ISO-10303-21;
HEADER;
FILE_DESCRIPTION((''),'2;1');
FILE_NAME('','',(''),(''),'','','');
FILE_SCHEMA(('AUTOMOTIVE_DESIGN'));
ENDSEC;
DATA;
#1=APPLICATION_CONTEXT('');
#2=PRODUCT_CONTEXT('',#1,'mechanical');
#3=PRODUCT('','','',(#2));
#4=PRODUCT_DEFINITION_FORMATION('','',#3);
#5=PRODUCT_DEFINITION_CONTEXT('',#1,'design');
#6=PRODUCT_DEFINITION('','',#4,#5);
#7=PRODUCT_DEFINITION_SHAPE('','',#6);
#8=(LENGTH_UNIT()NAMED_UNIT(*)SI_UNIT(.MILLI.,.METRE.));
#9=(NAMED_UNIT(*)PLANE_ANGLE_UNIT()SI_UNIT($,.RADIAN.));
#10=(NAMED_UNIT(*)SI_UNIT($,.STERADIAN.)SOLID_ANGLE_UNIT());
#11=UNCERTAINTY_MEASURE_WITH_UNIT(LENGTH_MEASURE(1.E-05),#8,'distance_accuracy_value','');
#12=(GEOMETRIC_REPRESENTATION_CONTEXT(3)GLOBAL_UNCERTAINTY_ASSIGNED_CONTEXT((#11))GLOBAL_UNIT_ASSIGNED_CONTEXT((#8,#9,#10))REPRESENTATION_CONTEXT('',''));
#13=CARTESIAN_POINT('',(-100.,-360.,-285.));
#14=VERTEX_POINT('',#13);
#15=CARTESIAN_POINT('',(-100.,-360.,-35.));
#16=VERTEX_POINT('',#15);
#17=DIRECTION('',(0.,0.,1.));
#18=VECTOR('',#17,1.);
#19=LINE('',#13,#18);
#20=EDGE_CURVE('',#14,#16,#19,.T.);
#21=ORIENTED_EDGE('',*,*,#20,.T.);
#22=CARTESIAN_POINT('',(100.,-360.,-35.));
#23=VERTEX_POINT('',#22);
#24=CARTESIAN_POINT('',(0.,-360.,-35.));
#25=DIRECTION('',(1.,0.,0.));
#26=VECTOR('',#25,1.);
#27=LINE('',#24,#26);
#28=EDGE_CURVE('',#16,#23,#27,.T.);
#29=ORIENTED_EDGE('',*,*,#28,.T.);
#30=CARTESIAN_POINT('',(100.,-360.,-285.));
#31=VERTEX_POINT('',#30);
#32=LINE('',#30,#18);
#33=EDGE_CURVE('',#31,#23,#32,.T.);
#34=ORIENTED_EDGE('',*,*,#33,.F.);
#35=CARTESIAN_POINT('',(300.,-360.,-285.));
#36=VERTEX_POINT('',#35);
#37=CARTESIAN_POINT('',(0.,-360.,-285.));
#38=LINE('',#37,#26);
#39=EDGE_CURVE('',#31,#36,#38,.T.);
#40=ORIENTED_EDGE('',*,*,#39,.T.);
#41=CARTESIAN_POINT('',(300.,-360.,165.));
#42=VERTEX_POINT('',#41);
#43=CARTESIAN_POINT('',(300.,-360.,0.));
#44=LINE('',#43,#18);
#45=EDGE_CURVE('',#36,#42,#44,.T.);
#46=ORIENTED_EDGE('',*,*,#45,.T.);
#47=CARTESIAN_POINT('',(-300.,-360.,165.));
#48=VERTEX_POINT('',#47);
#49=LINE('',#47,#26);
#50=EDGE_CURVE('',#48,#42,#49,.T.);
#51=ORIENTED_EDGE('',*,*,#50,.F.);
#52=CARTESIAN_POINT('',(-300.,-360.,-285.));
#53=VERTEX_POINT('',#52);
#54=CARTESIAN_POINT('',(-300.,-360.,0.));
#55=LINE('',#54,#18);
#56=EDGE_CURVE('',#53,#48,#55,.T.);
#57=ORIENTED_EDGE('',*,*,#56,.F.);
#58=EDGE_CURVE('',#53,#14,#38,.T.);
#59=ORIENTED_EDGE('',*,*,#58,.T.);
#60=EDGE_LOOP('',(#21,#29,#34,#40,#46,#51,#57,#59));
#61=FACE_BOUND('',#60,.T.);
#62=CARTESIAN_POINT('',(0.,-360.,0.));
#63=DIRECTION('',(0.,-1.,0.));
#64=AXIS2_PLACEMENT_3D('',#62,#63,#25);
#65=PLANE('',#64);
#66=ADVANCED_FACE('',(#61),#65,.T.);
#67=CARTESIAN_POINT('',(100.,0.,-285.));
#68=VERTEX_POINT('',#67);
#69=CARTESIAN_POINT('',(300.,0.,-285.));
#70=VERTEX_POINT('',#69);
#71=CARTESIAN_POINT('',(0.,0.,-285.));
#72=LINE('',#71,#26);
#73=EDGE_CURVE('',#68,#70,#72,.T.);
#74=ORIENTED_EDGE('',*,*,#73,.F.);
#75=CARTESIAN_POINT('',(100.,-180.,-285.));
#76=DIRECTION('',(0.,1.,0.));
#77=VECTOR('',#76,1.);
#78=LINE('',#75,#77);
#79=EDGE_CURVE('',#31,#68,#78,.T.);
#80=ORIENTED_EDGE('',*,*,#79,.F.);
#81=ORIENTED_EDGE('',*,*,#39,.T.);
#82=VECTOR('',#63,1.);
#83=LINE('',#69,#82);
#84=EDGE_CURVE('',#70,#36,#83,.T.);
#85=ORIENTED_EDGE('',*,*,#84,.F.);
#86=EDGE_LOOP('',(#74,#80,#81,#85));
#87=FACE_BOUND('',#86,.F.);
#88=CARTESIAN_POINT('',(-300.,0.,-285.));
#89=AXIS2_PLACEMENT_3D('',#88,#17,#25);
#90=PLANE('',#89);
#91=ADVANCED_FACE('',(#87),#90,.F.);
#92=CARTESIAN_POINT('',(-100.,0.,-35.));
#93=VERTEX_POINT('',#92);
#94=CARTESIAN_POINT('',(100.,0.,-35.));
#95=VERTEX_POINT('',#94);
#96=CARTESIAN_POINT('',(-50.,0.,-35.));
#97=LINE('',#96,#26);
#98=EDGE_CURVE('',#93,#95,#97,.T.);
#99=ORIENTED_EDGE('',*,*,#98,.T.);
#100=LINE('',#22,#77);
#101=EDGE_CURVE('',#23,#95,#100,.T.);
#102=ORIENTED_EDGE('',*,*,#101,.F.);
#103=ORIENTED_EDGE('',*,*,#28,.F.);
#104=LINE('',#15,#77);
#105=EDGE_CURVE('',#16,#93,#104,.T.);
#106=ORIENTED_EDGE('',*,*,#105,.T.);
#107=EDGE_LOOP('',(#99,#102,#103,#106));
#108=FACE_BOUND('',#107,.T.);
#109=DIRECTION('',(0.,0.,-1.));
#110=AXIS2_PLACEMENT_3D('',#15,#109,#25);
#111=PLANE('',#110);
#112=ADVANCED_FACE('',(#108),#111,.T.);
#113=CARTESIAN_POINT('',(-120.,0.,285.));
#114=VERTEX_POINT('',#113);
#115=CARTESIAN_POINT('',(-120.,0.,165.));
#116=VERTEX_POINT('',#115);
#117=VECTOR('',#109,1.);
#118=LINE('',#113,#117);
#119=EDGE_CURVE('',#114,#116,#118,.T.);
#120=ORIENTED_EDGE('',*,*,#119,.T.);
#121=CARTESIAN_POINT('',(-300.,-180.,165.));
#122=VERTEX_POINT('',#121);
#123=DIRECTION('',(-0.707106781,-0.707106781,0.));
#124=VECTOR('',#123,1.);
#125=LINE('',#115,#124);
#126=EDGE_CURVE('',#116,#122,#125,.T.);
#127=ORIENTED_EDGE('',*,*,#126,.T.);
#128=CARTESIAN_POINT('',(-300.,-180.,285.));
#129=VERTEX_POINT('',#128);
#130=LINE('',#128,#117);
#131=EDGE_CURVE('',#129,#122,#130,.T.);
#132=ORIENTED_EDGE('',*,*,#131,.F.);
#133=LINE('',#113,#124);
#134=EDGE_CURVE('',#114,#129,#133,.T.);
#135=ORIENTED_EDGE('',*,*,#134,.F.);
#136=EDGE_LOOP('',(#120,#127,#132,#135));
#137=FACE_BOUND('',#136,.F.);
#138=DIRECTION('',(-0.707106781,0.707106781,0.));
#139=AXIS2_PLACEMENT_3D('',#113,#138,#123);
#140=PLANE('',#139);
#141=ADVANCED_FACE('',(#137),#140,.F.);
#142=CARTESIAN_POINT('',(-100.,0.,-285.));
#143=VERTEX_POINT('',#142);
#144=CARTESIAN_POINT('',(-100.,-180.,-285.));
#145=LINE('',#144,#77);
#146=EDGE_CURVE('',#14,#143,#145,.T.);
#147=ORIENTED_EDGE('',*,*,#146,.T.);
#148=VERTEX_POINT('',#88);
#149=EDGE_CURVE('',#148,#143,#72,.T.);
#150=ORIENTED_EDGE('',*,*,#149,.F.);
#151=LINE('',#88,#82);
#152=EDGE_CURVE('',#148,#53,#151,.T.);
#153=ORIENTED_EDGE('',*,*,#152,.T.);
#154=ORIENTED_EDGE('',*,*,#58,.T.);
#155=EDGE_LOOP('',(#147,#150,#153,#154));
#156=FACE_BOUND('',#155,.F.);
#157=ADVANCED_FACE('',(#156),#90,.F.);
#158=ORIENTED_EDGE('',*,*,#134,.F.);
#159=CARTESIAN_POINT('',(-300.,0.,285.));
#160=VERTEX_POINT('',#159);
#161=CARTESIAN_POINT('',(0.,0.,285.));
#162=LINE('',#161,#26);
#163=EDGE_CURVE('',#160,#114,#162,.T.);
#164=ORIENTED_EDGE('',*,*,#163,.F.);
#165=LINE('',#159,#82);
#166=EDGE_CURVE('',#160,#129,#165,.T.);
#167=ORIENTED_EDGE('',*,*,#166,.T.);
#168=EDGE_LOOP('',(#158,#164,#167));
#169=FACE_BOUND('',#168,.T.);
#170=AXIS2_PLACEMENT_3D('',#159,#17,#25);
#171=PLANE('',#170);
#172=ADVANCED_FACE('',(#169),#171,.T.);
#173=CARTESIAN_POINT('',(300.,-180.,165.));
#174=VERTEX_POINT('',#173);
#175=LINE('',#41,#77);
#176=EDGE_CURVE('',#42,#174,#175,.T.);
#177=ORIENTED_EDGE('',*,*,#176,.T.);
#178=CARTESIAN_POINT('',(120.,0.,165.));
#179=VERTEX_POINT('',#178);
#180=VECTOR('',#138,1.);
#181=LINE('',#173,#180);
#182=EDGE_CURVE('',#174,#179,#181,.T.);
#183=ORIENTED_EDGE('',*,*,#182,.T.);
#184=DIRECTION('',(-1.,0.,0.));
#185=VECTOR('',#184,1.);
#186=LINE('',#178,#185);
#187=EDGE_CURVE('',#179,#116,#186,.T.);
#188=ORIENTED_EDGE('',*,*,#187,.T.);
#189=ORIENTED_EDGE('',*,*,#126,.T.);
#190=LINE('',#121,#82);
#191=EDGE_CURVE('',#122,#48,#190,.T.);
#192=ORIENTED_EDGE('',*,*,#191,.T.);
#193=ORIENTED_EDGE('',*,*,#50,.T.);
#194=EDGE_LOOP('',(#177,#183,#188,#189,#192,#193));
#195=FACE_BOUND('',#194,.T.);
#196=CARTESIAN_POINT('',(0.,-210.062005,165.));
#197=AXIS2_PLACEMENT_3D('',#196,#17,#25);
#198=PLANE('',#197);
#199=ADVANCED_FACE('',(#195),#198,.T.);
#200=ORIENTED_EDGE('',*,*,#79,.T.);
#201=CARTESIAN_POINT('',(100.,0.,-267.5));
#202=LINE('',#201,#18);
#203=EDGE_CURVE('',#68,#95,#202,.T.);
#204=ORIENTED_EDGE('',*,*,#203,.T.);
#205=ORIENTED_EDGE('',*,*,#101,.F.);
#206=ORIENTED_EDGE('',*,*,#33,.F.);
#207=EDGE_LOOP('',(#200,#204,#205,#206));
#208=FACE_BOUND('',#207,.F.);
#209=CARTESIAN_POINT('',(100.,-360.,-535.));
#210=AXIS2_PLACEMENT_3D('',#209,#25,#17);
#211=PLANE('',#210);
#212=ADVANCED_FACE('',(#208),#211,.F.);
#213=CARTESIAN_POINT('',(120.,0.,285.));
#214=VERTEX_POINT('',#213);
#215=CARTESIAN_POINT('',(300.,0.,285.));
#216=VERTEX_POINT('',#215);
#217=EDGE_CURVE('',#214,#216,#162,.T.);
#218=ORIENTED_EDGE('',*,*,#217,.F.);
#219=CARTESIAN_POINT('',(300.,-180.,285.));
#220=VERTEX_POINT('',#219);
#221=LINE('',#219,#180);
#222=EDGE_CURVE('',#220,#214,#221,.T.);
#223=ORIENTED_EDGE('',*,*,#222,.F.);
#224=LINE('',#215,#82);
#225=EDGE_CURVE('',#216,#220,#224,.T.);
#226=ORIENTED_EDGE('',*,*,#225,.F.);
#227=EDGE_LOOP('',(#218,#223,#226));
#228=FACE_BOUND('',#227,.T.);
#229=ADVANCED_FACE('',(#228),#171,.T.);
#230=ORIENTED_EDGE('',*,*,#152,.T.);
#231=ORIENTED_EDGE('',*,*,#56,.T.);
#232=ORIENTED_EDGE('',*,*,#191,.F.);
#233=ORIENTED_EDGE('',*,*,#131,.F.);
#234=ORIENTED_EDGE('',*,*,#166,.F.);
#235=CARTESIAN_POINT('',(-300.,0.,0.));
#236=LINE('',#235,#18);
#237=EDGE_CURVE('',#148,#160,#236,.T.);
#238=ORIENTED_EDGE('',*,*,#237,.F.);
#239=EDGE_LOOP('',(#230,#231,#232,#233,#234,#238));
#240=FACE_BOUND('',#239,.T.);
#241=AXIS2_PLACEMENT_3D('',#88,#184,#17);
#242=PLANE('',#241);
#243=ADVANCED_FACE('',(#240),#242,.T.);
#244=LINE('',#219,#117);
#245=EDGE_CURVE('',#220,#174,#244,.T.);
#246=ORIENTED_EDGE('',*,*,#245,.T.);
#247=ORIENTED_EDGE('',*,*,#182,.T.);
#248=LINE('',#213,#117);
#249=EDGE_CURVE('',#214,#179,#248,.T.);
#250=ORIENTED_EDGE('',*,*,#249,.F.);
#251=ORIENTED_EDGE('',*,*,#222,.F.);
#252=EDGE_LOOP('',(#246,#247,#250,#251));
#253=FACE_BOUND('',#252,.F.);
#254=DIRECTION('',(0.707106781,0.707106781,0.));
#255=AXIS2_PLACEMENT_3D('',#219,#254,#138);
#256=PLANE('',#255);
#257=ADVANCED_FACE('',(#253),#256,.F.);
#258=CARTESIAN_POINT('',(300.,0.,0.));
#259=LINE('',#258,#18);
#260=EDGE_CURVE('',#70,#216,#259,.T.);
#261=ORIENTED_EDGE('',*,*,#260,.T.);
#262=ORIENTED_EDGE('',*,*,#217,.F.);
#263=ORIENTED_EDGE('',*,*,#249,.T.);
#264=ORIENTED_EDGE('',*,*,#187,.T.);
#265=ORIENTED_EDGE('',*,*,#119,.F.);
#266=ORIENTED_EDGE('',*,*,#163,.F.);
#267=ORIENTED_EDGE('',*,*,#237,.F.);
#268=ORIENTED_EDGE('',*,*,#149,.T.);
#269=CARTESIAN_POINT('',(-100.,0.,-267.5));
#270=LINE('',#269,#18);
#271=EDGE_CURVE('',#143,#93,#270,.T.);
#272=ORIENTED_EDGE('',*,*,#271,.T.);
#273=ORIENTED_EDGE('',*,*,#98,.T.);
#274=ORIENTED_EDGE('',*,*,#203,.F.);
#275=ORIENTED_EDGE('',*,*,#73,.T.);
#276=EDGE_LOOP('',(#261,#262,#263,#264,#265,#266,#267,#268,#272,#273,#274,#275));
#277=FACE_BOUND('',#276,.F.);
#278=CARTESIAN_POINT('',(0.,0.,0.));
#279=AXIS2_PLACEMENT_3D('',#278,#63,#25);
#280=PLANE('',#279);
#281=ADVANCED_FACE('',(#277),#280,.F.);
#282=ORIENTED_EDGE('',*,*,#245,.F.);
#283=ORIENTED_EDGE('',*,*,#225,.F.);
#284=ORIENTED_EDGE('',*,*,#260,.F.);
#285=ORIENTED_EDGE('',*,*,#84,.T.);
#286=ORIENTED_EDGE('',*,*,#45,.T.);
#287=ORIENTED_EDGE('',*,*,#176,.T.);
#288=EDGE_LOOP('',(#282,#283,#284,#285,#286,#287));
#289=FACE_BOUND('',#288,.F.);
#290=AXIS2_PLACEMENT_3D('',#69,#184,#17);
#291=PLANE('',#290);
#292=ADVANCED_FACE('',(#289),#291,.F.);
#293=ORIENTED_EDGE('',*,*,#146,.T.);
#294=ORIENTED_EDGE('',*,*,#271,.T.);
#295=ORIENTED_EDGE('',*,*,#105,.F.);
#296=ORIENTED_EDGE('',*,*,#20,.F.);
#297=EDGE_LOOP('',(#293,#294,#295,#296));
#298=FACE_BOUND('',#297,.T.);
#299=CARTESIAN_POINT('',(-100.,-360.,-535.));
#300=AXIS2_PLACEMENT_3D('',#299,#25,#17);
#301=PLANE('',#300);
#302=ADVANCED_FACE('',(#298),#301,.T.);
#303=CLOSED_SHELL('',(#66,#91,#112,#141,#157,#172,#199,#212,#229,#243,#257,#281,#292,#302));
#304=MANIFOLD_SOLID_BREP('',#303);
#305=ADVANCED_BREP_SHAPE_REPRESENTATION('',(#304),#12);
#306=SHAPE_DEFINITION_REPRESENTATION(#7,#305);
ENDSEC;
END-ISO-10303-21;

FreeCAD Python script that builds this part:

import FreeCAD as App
import Part
import Sketcher

V = App.Vector
Q = App.Units.Quantity


def add_polygon(sketch, points):
    """Adds a closed chain of lines whose ends are joined by coincident constraints."""
    first, n = sketch.GeometryCount, len(points)
    for a, b in zip(points, points[1:] + points[:1]):
        sketch.addGeometry(Part.LineSegment(App.Vector(*a, 0), App.Vector(*b, 0)), False)
    for i in range(n):
        sketch.addConstraint(Sketcher.Constraint("Coincident", first + i, 2, first + (i + 1) % n, 1))

doc = App.newDocument("Part")
body = doc.addObject("PartDesign::Body", "Body")

# Sketch on XZ plane
sketch1 = body.newObject("Sketcher::SketchObject", "Sketch")
sketch1.AttachmentSupport = (doc.getObject("XZ_Plane"), [""])
sketch1.MapMode = "FlatFace"
add_polygon(sketch1, [(-300, 285), (-300, -285), (300, -285), (300, 285)])  # lines 0-3
sketch1.addConstraint(Sketcher.Constraint("Vertical", 0))
sketch1.addConstraint(Sketcher.Constraint("Horizontal", 1))
sketch1.addConstraint(Sketcher.Constraint("Vertical", 2))
sketch1.addConstraint(Sketcher.Constraint("Horizontal", 3))
sketch1.addConstraint(Sketcher.Constraint("Symmetric", 0, 2, 2, 2, -1, 1))
sketch1.addConstraint(Sketcher.Constraint("DistanceX", 1, 1, 1, 2, Q("600 mm")))
sketch1.addConstraint(Sketcher.Constraint("DistanceY", 0, 2, 0, 1, Q("570 mm")))
pad1 = body.newObject("PartDesign::Pad", "Pad")
pad1.Profile = sketch1
pad1.Length = 360

# Sketch on XZ plane
sketch2 = body.newObject("Sketcher::SketchObject", "Sketch001")
sketch2.AttachmentSupport = (doc.getObject("XZ_Plane"), [""])
sketch2.MapMode = "FlatFace"
sketch2.AttachmentOffset = App.Placement(V(0, 0, 360), App.Rotation())
add_polygon(sketch2, [(-100, -35), (-100, -535), (100, -535), (100, -35)])  # lines 0-3
sketch2.addConstraint(Sketcher.Constraint("Vertical", 0))
sketch2.addConstraint(Sketcher.Constraint("Horizontal", 1))
sketch2.addConstraint(Sketcher.Constraint("Vertical", 2))
sketch2.addConstraint(Sketcher.Constraint("Horizontal", 3))
sketch2.addConstraint(Sketcher.Constraint("DistanceX", 1, 1, 1, 2, Q("200 mm")))
sketch2.addConstraint(Sketcher.Constraint("DistanceY", 0, 2, 0, 1, Q("500 mm")))
sketch2.addConstraint(Sketcher.Constraint("DistanceX", 0, 2, -1, 1, Q("100 mm")))
sketch2.addConstraint(Sketcher.Constraint("DistanceY", 0, 2, -1, 1, Q("535 mm")))
pocket1 = body.newObject("PartDesign::Pocket", "Pocket")
pocket1.Profile = sketch2
pocket1.Type = "ThroughAll"

# Sketch on XY plane
sketch3 = body.newObject("Sketcher::SketchObject", "Sketch002")
sketch3.AttachmentSupport = (doc.getObject("XY_Plane"), [""])
sketch3.MapMode = "FlatFace"
sketch3.AttachmentOffset = App.Placement(V(0, 0, 285), App.Rotation())
add_polygon(sketch3, [(-300, -180), (-300, -360), (300, -360), (300, -180), (120, 0), (-120, 0)])  # lines 0-5
sketch3.addConstraint(Sketcher.Constraint("Vertical", 0))
sketch3.addConstraint(Sketcher.Constraint("Horizontal", 1))
sketch3.addConstraint(Sketcher.Constraint("Vertical", 2))
sketch3.addConstraint(Sketcher.Constraint("Horizontal", 4))
sketch3.addConstraint(Sketcher.Constraint("Symmetric", 3, 2, 4, 2, -1, 1))
sketch3.addConstraint(Sketcher.Constraint("Symmetric", 2, 2, 5, 2, -2))
sketch3.addConstraint(Sketcher.Constraint("Perpendicular", 3, 5))
sketch3.addConstraint(Sketcher.Constraint("DistanceX", 1, 1, 1, 2, Q("600 mm")))
sketch3.addConstraint(Sketcher.Constraint("DistanceX", 4, 2, 4, 1, Q("240 mm")))
sketch3.addConstraint(Sketcher.Constraint("DistanceY", 0, 2, 0, 1, Q("180 mm")))
pocket2 = body.newObject("PartDesign::Pocket", "Pocket001")
pocket2.Profile = sketch3
pocket2.Length = 120

doc.recompute()
